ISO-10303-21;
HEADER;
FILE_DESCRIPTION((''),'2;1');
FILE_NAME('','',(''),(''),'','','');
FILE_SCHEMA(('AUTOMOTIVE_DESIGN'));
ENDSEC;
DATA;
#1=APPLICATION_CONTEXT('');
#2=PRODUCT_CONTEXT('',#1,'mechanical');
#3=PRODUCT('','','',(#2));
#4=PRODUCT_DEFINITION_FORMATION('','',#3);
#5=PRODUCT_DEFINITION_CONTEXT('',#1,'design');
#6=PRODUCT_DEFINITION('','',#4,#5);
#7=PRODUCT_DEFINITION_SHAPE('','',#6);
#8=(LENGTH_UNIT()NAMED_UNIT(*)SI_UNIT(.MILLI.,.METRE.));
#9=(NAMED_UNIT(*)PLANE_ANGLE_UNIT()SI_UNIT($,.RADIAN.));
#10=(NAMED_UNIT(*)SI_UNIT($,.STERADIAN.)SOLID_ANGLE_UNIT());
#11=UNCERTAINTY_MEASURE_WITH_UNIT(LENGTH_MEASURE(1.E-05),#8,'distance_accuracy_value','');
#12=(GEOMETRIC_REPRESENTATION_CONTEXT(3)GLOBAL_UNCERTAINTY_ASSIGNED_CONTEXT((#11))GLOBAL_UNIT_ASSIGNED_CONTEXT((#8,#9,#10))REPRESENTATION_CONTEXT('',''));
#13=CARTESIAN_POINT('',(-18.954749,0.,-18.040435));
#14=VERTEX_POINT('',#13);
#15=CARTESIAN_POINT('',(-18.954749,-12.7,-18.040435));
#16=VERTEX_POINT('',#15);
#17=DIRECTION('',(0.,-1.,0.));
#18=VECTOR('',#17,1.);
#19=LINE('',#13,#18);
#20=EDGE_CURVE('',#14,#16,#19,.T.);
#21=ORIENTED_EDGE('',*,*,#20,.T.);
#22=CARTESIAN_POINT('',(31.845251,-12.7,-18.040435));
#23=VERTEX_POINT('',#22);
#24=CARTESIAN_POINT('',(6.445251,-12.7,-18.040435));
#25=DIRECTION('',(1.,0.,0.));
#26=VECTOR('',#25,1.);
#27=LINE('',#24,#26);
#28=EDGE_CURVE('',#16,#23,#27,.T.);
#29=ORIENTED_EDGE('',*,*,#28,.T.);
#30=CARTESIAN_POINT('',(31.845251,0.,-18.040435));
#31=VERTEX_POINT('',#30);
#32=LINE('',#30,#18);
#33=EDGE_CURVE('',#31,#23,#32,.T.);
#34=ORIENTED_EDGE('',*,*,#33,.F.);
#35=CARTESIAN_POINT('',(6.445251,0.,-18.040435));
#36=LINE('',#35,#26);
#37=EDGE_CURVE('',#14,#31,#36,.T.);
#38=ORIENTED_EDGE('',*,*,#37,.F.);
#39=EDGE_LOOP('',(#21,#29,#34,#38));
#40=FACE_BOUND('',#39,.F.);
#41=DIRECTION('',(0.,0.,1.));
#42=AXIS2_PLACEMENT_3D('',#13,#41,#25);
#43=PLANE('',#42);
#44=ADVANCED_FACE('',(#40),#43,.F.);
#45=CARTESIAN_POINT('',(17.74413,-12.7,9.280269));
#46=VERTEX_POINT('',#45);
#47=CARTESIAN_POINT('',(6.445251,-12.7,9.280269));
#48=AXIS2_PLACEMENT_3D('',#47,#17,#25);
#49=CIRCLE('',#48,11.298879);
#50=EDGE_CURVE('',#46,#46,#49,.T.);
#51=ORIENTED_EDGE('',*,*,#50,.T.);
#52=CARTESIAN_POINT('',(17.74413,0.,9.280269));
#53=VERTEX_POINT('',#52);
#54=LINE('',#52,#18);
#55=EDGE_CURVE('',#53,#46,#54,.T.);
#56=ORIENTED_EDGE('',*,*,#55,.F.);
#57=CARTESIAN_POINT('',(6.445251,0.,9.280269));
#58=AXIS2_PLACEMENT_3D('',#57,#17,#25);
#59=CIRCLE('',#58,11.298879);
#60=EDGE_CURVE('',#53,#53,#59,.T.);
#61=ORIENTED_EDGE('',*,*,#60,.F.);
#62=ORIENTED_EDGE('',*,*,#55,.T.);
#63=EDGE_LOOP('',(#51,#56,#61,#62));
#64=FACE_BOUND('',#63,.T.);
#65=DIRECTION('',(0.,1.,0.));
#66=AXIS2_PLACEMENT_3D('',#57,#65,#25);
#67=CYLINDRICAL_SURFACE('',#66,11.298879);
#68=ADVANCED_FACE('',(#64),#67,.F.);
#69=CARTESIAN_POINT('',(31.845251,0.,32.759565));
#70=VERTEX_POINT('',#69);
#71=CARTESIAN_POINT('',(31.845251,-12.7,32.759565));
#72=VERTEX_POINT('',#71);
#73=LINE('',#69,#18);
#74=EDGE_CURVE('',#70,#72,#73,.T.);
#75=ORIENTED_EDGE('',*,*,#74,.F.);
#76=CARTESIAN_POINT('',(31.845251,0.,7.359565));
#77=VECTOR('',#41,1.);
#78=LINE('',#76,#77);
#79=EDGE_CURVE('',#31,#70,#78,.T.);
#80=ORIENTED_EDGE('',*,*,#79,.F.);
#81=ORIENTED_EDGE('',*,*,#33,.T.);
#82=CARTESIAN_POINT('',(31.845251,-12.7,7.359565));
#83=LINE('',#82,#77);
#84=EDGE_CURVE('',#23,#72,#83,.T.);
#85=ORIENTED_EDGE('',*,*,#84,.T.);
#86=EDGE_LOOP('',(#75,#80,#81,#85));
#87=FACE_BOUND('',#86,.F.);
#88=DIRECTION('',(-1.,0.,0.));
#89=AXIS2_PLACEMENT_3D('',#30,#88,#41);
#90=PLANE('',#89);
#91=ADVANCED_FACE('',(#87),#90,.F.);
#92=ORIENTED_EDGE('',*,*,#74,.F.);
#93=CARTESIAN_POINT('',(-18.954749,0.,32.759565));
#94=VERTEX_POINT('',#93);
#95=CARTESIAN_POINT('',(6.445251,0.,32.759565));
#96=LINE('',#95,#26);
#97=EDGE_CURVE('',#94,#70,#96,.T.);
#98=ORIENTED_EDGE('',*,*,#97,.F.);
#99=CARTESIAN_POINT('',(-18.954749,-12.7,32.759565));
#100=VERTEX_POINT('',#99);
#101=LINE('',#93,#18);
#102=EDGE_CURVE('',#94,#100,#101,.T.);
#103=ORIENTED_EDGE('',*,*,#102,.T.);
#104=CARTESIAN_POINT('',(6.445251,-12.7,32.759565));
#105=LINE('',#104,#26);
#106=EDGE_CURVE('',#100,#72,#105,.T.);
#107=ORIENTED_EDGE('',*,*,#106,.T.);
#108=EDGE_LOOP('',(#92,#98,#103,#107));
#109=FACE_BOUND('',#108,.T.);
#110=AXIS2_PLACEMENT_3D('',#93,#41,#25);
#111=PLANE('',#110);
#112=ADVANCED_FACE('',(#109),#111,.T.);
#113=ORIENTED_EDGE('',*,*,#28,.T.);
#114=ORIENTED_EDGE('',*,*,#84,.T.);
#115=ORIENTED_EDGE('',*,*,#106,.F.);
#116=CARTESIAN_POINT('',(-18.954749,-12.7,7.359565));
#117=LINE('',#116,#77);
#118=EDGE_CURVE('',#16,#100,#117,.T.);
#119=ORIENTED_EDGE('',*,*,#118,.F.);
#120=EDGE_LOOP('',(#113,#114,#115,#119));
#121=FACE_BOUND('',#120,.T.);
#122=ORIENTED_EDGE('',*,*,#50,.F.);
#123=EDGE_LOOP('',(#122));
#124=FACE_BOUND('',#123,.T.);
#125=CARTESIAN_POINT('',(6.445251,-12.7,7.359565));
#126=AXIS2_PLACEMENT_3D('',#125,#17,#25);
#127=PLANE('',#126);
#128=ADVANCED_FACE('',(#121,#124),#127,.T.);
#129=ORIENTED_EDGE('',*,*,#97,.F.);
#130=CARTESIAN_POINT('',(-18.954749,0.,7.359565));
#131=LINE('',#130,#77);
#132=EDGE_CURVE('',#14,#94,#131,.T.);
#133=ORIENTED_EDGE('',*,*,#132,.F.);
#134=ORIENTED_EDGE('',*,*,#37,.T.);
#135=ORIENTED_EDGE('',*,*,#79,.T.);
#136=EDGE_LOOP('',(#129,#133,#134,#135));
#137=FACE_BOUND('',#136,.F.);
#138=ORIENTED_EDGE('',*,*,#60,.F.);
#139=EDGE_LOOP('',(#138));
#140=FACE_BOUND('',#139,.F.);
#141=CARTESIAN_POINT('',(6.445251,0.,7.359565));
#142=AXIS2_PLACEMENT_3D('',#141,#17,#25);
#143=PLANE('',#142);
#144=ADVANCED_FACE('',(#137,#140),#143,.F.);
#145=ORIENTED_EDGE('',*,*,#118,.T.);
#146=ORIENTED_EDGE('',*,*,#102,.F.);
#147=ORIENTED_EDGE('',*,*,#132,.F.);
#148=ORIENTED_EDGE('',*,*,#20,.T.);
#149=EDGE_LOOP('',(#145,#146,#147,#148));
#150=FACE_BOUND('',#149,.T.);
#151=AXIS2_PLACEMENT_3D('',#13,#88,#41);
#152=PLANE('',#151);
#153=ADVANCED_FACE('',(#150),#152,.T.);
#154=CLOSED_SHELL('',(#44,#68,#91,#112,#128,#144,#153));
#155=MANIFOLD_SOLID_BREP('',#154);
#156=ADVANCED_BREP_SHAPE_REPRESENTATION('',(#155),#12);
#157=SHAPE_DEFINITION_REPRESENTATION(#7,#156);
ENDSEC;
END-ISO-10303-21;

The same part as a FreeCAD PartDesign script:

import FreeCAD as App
import Part
import Sketcher

V = App.Vector
Q = App.Units.Quantity

doc = App.newDocument("Part")
body = doc.addObject("PartDesign::Body", "Body")

sketch1 = doc.addObject("Sketcher::SketchObject", "Sketch")
body.addObject(sketch1)
sketch1.AttachmentSupport = (doc.XZ_Plane, [""])
sketch1.MapMode = "FlatFace"
sketch1.addGeometry([
    Part.LineSegment(V(-19, 33, 0), V(-19, -18, 0)),
    Part.LineSegment(V(-19, -18, 0), V(32, -18, 0)),
    Part.LineSegment(V(32, -18, 0), V(32, 33, 0)),
    Part.LineSegment(V(32, 33, 0), V(-19, 33, 0)),
    Part.Circle(V(6, 9, 0), V(0, 0, 1), 11),
], False)
sketch1.addConstraint([
    Sketcher.Constraint("Coincident", 0, 2, 1, 1),
    Sketcher.Constraint("Coincident", 1, 2, 2, 1),
    Sketcher.Constraint("Coincident", 2, 2, 3, 1),
    Sketcher.Constraint("Coincident", 3, 2, 0, 1),
    Sketcher.Constraint("Vertical", 0),
    Sketcher.Constraint("Horizontal", 1),
    Sketcher.Constraint("Vertical", 2),
    Sketcher.Constraint("Horizontal", 3),
    Sketcher.Constraint("Equal", 3, 0),
    Sketcher.Constraint("DistanceX", 1, 1, 1, 2, Q("2 in")),
    Sketcher.Constraint("DistanceX", 0, 2, 4, 3, Q("1 in")),
    Sketcher.Constraint("Diameter", 4, Q("22.597758 mm")),
    Sketcher.Constraint("DistanceX", -1, 1, 4, 3, Q("6.445251 mm")),
    Sketcher.Constraint("DistanceY", -1, 1, 4, 3, Q("9.280269 mm")),
    Sketcher.Constraint("DistanceY", 0, 2, -1, 1, Q("18.040435 mm")),
])
pad1 = doc.addObject("PartDesign::Pad", "Pad")
body.addObject(pad1)
pad1.Profile = sketch1
pad1.Length = Q("0.5 in")

sketch2 = doc.addObject("Sketcher::SketchObject", "Sketch001")
body.addObject(sketch2)
sketch2.AttachmentSupport = (doc.XZ_Plane, [""])
sketch2.MapMode = "FlatFace"
sketch2.addGeometry([
    Part.LineSegment(V(-19, 33, 0), V(-19, -18, 0)),
    Part.LineSegment(V(-19, -18, 0), V(32, -18, 0)),
    Part.LineSegment(V(32, -18, 0), V(32, 33, 0)),
    Part.LineSegment(V(32, 33, 0), V(-19, 33, 0)),
    Part.Circle(V(6, 9, 0), V(0, 0, 1), 11),
], False)
sketch2.addConstraint([
    Sketcher.Constraint("Coincident", 0, 2, 1, 1),
    Sketcher.Constraint("Coincident", 1, 2, 2, 1),
    Sketcher.Constraint("Coincident", 2, 2, 3, 1),
    Sketcher.Constraint("Coincident", 3, 2, 0, 1),
    Sketcher.Constraint("Vertical", 0),
    Sketcher.Constraint("Horizontal", 1),
    Sketcher.Constraint("Vertical", 2),
    Sketcher.Constraint("Horizontal", 3),
    Sketcher.Constraint("Equal", 3, 0),
    Sketcher.Constraint("DistanceX", 1, 1, 1, 2, Q("2 in")),
    Sketcher.Constraint("DistanceX", 0, 2, 4, 3, Q("1 in")),
    Sketcher.Constraint("Diameter", 4, Q("22.597758 mm")),
    Sketcher.Constraint("DistanceX", -1, 1, 4, 3, Q("6.445251 mm")),
    Sketcher.Constraint("DistanceY", -1, 1, 4, 3, Q("9.280269 mm")),
    Sketcher.Constraint("DistanceY", 0, 2, -1, 1, Q("18.040435 mm")),
])
pad2 = doc.addObject("PartDesign::Pad", "Pad001")
body.addObject(pad2)
pad2.Profile = sketch2
pad2.Length = Q("0.5 in")

doc.recompute()
